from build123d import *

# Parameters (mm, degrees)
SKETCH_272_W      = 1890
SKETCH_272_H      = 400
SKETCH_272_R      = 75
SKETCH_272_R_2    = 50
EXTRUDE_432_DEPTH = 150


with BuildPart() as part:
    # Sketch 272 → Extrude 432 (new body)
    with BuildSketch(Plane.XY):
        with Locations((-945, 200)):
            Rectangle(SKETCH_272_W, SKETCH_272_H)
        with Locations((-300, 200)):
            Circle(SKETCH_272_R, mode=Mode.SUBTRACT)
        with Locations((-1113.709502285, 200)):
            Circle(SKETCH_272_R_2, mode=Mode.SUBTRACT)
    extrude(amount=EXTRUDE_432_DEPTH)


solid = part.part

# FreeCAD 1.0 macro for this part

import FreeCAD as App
import Part
import Sketcher
from FreeCAD import Vector

doc = App.newDocument("Part")
body = doc.addObject("PartDesign::Body", "Body")

# Sketch on XY plane
sketch1 = body.newObject("Sketcher::SketchObject", "Sketch")
sketch1.AttachmentSupport = (doc.getObject("XY_Plane"), [""])
sketch1.MapMode = "FlatFace"
sketch1.addGeometry([
    Part.LineSegment(Vector(-1890, 400, 0), Vector(-1890, 0, 0)),  # 0
    Part.LineSegment(Vector(-1890, 0, 0), Vector(0, 0, 0)),  # 1
    Part.LineSegment(Vector(0, 0, 0), Vector(0, 400, 0)),  # 2
    Part.LineSegment(Vector(0, 400, 0), Vector(-1890, 400, 0)),  # 3
    Part.Circle(Vector(-1113.709502, 200, 0), Vector(0, 0, 1), 50),  # 4
    Part.Circle(Vector(-300, 200, 0), Vector(0, 0, 1), 75),  # 5
], False)
sketch1.addConstraint([
    Sketcher.Constraint("Coincident", 0, 2, 1, 1),
    Sketcher.Constraint("Coincident", 1, 2, 2, 1),
    Sketcher.Constraint("Coincident", 2, 2, 3, 1),
    Sketcher.Constraint("Coincident", 3, 2, 0, 1),
    Sketcher.Constraint("Vertical", 0),
    Sketcher.Constraint("Horizontal", 1),
    Sketcher.Constraint("Vertical", 2),
    Sketcher.Constraint("Horizontal", 3),
    Sketcher.Constraint("Coincident", 1, 2, -1, 1),
    Sketcher.Constraint("Horizontal", 4, 3, 5, 3),
    Sketcher.Constraint("Diameter", 4, 100.0),
    Sketcher.Constraint("Diameter", 5, 150.0),
    Sketcher.Constraint("DistanceX", 1, 1, 1, 2, 1890.0),
    Sketcher.Constraint("DistanceY", 0, 2, 0, 1, 400.0),
    Sketcher.Constraint("DistanceY", -1, 1, 4, 3, 200.0),
    Sketcher.Constraint("DistanceX", 5, 3, -1, 1, 300.0),
    Sketcher.Constraint("DistanceX", 4, 3, -1, 1, 1113.709502),
])
pad1 = body.newObject("PartDesign::Pad", "Pad")
pad1.Profile = sketch1
pad1.Length = 150

doc.recompute()
